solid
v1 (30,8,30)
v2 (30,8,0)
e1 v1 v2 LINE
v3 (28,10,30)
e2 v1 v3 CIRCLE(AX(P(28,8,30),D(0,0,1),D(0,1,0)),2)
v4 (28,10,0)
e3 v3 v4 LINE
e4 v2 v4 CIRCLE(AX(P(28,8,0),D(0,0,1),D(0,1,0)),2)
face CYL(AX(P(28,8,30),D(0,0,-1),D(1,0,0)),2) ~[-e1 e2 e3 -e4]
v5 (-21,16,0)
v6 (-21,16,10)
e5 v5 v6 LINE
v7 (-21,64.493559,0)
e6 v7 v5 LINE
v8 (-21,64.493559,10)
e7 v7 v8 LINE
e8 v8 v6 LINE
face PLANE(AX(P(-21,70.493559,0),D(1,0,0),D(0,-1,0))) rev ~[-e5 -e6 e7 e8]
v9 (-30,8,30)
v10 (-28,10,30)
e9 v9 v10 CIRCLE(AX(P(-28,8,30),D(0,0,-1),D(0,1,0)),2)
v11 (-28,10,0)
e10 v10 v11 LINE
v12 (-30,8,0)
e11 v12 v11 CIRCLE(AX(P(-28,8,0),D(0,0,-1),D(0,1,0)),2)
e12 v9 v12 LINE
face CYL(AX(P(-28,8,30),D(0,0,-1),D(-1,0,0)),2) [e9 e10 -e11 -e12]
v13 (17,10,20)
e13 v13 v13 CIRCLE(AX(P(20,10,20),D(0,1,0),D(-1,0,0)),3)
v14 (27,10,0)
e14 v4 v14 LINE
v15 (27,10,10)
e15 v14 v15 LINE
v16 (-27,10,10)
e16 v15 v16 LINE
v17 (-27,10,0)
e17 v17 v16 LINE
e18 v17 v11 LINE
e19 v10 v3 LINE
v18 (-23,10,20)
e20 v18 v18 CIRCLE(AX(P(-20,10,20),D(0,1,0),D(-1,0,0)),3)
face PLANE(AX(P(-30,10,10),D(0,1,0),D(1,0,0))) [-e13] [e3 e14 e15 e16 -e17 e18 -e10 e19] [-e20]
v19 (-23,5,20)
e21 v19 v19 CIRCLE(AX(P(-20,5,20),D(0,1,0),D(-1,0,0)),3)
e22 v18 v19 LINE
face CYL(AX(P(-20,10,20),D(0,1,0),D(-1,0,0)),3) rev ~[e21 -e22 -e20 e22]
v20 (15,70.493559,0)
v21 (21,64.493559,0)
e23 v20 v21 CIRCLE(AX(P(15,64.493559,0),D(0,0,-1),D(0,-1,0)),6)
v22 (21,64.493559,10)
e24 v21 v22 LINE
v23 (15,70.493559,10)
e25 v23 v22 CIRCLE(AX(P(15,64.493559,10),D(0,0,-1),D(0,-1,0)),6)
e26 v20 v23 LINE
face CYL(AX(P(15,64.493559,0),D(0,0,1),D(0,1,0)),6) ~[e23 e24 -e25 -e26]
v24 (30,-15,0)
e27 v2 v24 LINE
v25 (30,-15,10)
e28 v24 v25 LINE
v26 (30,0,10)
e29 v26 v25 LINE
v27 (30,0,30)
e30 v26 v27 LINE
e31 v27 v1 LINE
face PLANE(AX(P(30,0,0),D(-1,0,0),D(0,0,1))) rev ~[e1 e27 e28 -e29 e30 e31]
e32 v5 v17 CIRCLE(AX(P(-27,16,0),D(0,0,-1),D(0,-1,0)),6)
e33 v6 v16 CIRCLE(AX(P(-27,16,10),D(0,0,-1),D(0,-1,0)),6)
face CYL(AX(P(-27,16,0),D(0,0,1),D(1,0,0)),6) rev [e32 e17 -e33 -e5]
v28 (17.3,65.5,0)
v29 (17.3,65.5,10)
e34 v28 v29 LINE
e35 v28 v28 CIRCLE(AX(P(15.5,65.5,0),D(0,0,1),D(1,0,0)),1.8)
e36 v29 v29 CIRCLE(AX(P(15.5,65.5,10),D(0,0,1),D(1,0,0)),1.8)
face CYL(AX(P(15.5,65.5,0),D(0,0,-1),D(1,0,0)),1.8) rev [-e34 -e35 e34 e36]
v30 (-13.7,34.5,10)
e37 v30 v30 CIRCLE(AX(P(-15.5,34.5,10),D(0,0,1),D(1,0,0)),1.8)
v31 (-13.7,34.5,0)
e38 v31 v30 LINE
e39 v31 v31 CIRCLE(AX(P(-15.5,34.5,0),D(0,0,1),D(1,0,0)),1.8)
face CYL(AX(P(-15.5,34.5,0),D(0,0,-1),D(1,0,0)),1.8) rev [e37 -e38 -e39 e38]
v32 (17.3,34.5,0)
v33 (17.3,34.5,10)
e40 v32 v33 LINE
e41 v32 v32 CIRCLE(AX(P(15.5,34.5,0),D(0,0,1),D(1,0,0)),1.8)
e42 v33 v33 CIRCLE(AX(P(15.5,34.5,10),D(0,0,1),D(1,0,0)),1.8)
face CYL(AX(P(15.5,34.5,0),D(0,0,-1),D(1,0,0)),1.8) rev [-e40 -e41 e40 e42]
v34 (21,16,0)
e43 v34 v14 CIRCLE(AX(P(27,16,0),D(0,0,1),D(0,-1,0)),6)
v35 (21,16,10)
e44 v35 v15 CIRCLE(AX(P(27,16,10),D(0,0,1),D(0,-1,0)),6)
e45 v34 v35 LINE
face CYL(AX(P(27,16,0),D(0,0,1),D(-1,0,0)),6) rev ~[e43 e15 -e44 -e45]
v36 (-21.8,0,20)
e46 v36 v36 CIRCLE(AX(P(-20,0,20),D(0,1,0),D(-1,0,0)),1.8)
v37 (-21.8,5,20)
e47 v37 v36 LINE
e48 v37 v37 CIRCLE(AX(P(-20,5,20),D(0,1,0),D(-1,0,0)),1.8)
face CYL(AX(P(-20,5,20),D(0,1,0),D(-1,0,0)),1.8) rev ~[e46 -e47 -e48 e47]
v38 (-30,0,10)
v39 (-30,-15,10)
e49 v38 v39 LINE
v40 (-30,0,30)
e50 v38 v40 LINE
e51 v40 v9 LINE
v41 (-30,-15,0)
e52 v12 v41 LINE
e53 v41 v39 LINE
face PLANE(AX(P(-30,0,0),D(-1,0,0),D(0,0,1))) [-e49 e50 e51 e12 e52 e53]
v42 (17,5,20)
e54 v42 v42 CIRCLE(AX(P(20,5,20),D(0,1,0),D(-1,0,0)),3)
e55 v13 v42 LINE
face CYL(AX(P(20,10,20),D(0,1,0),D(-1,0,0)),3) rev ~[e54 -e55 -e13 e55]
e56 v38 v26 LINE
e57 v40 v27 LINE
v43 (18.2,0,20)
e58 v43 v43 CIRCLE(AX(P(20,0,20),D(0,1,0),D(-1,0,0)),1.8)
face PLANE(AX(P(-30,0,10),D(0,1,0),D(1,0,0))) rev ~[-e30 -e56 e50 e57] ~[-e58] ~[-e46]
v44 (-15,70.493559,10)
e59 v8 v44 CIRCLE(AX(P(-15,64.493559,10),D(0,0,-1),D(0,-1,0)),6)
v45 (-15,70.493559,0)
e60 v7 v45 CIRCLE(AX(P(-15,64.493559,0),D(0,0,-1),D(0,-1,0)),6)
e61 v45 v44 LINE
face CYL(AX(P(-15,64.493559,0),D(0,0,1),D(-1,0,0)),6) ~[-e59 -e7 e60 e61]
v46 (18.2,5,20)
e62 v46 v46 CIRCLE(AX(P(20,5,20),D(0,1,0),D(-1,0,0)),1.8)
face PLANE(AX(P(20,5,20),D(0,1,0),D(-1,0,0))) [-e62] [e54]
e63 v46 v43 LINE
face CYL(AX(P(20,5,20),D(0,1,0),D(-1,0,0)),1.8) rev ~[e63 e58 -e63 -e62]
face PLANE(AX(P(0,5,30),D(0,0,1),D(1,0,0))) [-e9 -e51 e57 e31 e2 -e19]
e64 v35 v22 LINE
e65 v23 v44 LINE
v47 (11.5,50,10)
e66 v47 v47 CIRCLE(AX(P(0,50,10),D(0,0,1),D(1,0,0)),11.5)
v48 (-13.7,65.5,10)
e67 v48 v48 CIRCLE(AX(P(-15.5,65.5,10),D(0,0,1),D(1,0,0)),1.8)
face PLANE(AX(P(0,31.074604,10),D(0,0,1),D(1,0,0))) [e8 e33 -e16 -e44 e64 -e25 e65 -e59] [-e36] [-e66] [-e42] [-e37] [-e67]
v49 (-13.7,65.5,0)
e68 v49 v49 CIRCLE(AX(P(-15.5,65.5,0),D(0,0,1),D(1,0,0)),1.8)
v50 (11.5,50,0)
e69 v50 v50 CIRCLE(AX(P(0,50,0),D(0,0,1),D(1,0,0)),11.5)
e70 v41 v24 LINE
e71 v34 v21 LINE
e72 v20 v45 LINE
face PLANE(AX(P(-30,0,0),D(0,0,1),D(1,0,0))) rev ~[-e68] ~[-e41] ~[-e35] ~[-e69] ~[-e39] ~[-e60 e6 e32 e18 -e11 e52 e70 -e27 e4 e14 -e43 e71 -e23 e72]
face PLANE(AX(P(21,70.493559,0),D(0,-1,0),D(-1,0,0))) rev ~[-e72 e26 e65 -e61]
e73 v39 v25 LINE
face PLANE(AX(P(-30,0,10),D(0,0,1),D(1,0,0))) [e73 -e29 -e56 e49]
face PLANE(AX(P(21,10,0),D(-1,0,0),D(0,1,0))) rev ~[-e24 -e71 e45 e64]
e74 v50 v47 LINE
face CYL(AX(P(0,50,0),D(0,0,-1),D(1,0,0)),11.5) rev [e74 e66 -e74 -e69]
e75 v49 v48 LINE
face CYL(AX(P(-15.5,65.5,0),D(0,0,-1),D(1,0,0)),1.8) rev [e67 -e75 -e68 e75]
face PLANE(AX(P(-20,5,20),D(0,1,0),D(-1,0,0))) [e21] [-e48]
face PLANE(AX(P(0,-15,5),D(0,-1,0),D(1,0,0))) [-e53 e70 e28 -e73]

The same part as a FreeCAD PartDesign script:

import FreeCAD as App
import Part
import Sketcher
from FreeCAD import Vector


def edges_at(feature, points):
    """Names of the edges that pass closest to the given points."""
    edges = feature.Shape.Edges
    near = lambda p: min(range(len(edges)), key=lambda i: edges[i].distToShape(Part.Vertex(*p))[0])
    return sorted({f"Edge{near(p) + 1}" for p in points})

doc = App.newDocument("Part")
body = doc.addObject("PartDesign::Body", "Body")

sketch1 = body.newObject("Sketcher::SketchObject", "Sketch")
sketch1.AttachmentSupport = (doc.getObject("XY_Plane"), [""])
sketch1.MapMode = "FlatFace"
sketch1.addGeometry(Part.LineSegment(Vector(21, 10, 0), Vector(21, 70.5, 0)), False)
sketch1.addGeometry(Part.LineSegment(Vector(21, 70.5, 0), Vector(-21, 70.5, 0)), False)
sketch1.addGeometry(Part.LineSegment(Vector(-21, 70.5, 0), Vector(-21, 10, 0)), False)
sketch1.addGeometry(Part.LineSegment(Vector(-21, 10, 0), Vector(-30, 10, 0)), False)
sketch1.addGeometry(Part.LineSegment(Vector(-30, 10, 0), Vector(-30, 0, 0)), False)
sketch1.addGeometry(Part.LineSegment(Vector(-30, 0, 0), Vector(30, 0, 0)), False)
sketch1.addGeometry(Part.LineSegment(Vector(30, 0, 0), Vector(30, 10, 0)), False)
sketch1.addGeometry(Part.LineSegment(Vector(30, 10, 0), Vector(21, 10, 0)), False)
sketch1.addGeometry(Part.Circle(Vector(-15.5, 34.5, 0), Vector(0, 0, 1), 1.8), False)
sketch1.addGeometry(Part.Circle(Vector(15.5, 34.5, 0), Vector(0, 0, 1), 1.8), False)
sketch1.addGeometry(Part.Circle(Vector(-15.5, 65.5, 0), Vector(0, 0, 1), 1.8), False)
sketch1.addGeometry(Part.Circle(Vector(0, 50, 0), Vector(0, 0, 1), 11.5), False)
sketch1.addGeometry(Part.Circle(Vector(15.5, 65.5, 0), Vector(0, 0, 1), 1.8), False)
sketch1.addConstraint(Sketcher.Constraint("Coincident", 0, 2, 1, 1))
sketch1.addConstraint(Sketcher.Constraint("Coincident", 1, 2, 2, 1))
sketch1.addConstraint(Sketcher.Constraint("Coincident", 2, 2, 3, 1))
sketch1.addConstraint(Sketcher.Constraint("Coincident", 3, 2, 4, 1))
sketch1.addConstraint(Sketcher.Constraint("Coincident", 4, 2, 5, 1))
sketch1.addConstraint(Sketcher.Constraint("Coincident", 5, 2, 6, 1))
sketch1.addConstraint(Sketcher.Constraint("Coincident", 6, 2, 7, 1))
sketch1.addConstraint(Sketcher.Constraint("Coincident", 7, 2, 0, 1))
sketch1.addConstraint(Sketcher.Constraint("Vertical", 0))
sketch1.addConstraint(Sketcher.Constraint("Horizontal", 1))
sketch1.addConstraint(Sketcher.Constraint("Vertical", 2))
sketch1.addConstraint(Sketcher.Constraint("Horizontal", 3))
sketch1.addConstraint(Sketcher.Constraint("Vertical", 4))
sketch1.addConstraint(Sketcher.Constraint("Horizontal", 5))
sketch1.addConstraint(Sketcher.Constraint("Vertical", 6))
sketch1.addConstraint(Sketcher.Constraint("Horizontal", 7))
sketch1.addConstraint(Sketcher.Constraint("Equal", 8, 9))
sketch1.addConstraint(Sketcher.Constraint("Equal", 9, 10))
sketch1.addConstraint(Sketcher.Constraint("Equal", 10, 12))
sketch1.addConstraint(Sketcher.Constraint("Symmetric", 4, 2, 5, 2, -1, 1))
sketch1.addConstraint(Sketcher.Constraint("Symmetric", 8, 3, 9, 3, -2))
sketch1.addConstraint(Sketcher.Constraint("Symmetric", 10, 3, 12, 3, -2))
sketch1.addConstraint(Sketcher.Constraint("Symmetric", 2, 2, 7, 2, -2))
sketch1.addConstraint(Sketcher.Constraint("PointOnObject", 11, 3, -2))
sketch1.addConstraint(Sketcher.Constraint("Vertical", 8, 3, 10, 3))
sketch1.addConstraint(Sketcher.Constraint("Diameter", 11, 23.0))
sketch1.addConstraint(Sketcher.Constraint("Diameter", 8, 3.6))
sketch1.addConstraint(Sketcher.Constraint("DistanceX", 1, 2, 1, 1, 42.0))
sketch1.addConstraint(Sketcher.Constraint("DistanceX", 3, 2, 3, 1, 9.0))
sketch1.addConstraint(Sketcher.Constraint("DistanceY", 4, 2, 4, 1, 10.0))
sketch1.addConstraint(Sketcher.Constraint("DistanceY", -1, 1, 11, 3, 50.0))
sketch1.addConstraint(Sketcher.Constraint("DistanceX", 8, 3, 9, 3, 31.0))
sketch1.addConstraint(Sketcher.Constraint("DistanceY", 8, 3, 10, 3, 31.0))
sketch1.addConstraint(Sketcher.Constraint("DistanceY", -1, 1, 8, 3, 34.5))
sketch1.addConstraint(Sketcher.Constraint("DistanceY", 0, 1, 0, 2, 60.493559))
pad1 = body.newObject("PartDesign::Pad", "Pad")
pad1.Profile = sketch1
pad1.Length = 10

sketch2 = body.newObject("Sketcher::SketchObject", "Sketch001")
sketch2.AttachmentSupport = (doc.getObject("XY_Plane"), [""])
sketch2.MapMode = "FlatFace"
sketch2.AttachmentOffset = App.Placement(Vector(0, 0, 10), App.Rotation())
sketch2.addGeometry(Part.LineSegment(Vector(-30, 10, 0), Vector(-30, 0, 0)), False)
sketch2.addGeometry(Part.LineSegment(Vector(-30, 0, 0), Vector(30, 0, 0)), False)
sketch2.addGeometry(Part.LineSegment(Vector(30, 0, 0), Vector(30, 10, 0)), False)
sketch2.addGeometry(Part.LineSegment(Vector(30, 10, 0), Vector(-30, 10, 0)), False)
sketch2.addConstraint(Sketcher.Constraint("Coincident", 0, 2, 1, 1))
sketch2.addConstraint(Sketcher.Constraint("Coincident", 1, 2, 2, 1))
sketch2.addConstraint(Sketcher.Constraint("Coincident", 2, 2, 3, 1))
sketch2.addConstraint(Sketcher.Constraint("Coincident", 3, 2, 0, 1))
sketch2.addConstraint(Sketcher.Constraint("Vertical", 0))
sketch2.addConstraint(Sketcher.Constraint("Horizontal", 1))
sketch2.addConstraint(Sketcher.Constraint("Vertical", 2))
sketch2.addConstraint(Sketcher.Constraint("Horizontal", 3))
sketch2.addConstraint(Sketcher.Constraint("Symmetric", 0, 2, 1, 2, -1, 1))
sketch2.addConstraint(Sketcher.Constraint("DistanceX", 1, 1, 1, 2, 60.0))
sketch2.addConstraint(Sketcher.Constraint("DistanceY", 0, 2, 0, 1, 10.0))
pad2 = body.newObject("PartDesign::Pad", "Pad001")
pad2.Profile = sketch2
pad2.Length = 20

sketch3 = body.newObject("Sketcher::SketchObject", "Sketch002")
sketch3.AttachmentSupport = (doc.getObject("XZ_Plane"), [""])
sketch3.MapMode = "FlatFace"
sketch3.AttachmentOffset = App.Placement(Vector(0, 0, -10), App.Rotation())
sketch3.addGeometry(Part.Circle(Vector(20, 20, 0), Vector(0, 0, 1), 3), False)
sketch3.addGeometry(Part.Circle(Vector(-20, 20, 0), Vector(0, 0, 1), 3), False)
sketch3.addConstraint(Sketcher.Constraint("Equal", 0, 1))
sketch3.addConstraint(Sketcher.Constraint("Symmetric", 0, 3, 1, 3, -2))
sketch3.addConstraint(Sketcher.Constraint("Diameter", 0, 6.0))
sketch3.addConstraint(Sketcher.Constraint("DistanceX", -1, 1, 0, 3, 20.0))
sketch3.addConstraint(Sketcher.Constraint("DistanceY", -1, 1, 0, 3, 20.0))
pocket1 = body.newObject("PartDesign::Pocket", "Pocket")
pocket1.Profile = sketch3
pocket1.Length = 5
pocket1.Reversed = True

sketch4 = body.newObject("Sketcher::SketchObject", "Sketch003")
sketch4.AttachmentSupport = (doc.getObject("XZ_Plane"), [""])
sketch4.MapMode = "FlatFace"
sketch4.AttachmentOffset = App.Placement(Vector(0, 0, -5), App.Rotation())
sketch4.addGeometry(Part.Circle(Vector(20, 20, 0), Vector(0, 0, 1), 1.8), False)
sketch4.addGeometry(Part.Circle(Vector(-20, 20, 0), Vector(0, 0, 1), 1.8), False)
sketch4.addConstraint(Sketcher.Constraint("Equal", 0, 1))
sketch4.addConstraint(Sketcher.Constraint("Symmetric", 0, 3, 1, 3, -2))
sketch4.addConstraint(Sketcher.Constraint("Diameter", 0, 3.6))
sketch4.addConstraint(Sketcher.Constraint("DistanceX", -1, 1, 0, 3, 20.0))
sketch4.addConstraint(Sketcher.Constraint("DistanceY", -1, 1, 0, 3, 20.0))
pocket2 = body.newObject("PartDesign::Pocket", "Pocket001")
pocket2.Profile = sketch4
pocket2.Length = 5
pocket2.Reversed = True

sketch5 = body.newObject("Sketcher::SketchObject", "Sketch004")
sketch5.AttachmentSupport = (doc.getObject("XZ_Plane"), [""])
sketch5.MapMode = "FlatFace"
sketch5.addGeometry(Part.LineSegment(Vector(-30, 10, 0), Vector(-30, 0, 0)), False)
sketch5.addGeometry(Part.LineSegment(Vector(-30, 0, 0), Vector(30, 0, 0)), False)
sketch5.addGeometry(Part.LineSegment(Vector(30, 0, 0), Vector(30, 10, 0)), False)
sketch5.addGeometry(Part.LineSegment(Vector(30, 10, 0), Vector(-30, 10, 0)), False)
sketch5.addConstraint(Sketcher.Constraint("Coincident", 0, 2, 1, 1))
sketch5.addConstraint(Sketcher.Constraint("Coincident", 1, 2, 2, 1))
sketch5.addConstraint(Sketcher.Constraint("Coincident", 2, 2, 3, 1))
sketch5.addConstraint(Sketcher.Constraint("Coincident", 3, 2, 0, 1))
sketch5.addConstraint(Sketcher.Constraint("Vertical", 0))
sketch5.addConstraint(Sketcher.Constraint("Horizontal", 1))
sketch5.addConstraint(Sketcher.Constraint("Vertical", 2))
sketch5.addConstraint(Sketcher.Constraint("Horizontal", 3))
sketch5.addConstraint(Sketcher.Constraint("Symmetric", 0, 2, 1, 2, -1, 1))
sketch5.addConstraint(Sketcher.Constraint("DistanceX", 1, 1, 1, 2, 60.0))
sketch5.addConstraint(Sketcher.Constraint("DistanceY", 0, 2, 0, 1, 10.0))
pad3 = body.newObject("PartDesign::Pad", "Pad002")
pad3.Profile = sketch5
pad3.Length = 15
doc.recompute()

fillet = body.newObject("PartDesign::Fillet", "Fillet")
fillet.Base = (pad3, edges_at(pad3, [
    (-21, 70.494, 5),
    (21, 70.494, 5),
    (-21, 10, 5),
    (21, 10, 5),
]))
fillet.Radius = 6
doc.recompute()

fillet2 = body.newObject("PartDesign::Fillet", "Fillet001")
fillet2.Base = (fillet, edges_at(fillet, [(30, 10, 15), (-30, 10, 15)]))
fillet2.Radius = 2

doc.recompute()
